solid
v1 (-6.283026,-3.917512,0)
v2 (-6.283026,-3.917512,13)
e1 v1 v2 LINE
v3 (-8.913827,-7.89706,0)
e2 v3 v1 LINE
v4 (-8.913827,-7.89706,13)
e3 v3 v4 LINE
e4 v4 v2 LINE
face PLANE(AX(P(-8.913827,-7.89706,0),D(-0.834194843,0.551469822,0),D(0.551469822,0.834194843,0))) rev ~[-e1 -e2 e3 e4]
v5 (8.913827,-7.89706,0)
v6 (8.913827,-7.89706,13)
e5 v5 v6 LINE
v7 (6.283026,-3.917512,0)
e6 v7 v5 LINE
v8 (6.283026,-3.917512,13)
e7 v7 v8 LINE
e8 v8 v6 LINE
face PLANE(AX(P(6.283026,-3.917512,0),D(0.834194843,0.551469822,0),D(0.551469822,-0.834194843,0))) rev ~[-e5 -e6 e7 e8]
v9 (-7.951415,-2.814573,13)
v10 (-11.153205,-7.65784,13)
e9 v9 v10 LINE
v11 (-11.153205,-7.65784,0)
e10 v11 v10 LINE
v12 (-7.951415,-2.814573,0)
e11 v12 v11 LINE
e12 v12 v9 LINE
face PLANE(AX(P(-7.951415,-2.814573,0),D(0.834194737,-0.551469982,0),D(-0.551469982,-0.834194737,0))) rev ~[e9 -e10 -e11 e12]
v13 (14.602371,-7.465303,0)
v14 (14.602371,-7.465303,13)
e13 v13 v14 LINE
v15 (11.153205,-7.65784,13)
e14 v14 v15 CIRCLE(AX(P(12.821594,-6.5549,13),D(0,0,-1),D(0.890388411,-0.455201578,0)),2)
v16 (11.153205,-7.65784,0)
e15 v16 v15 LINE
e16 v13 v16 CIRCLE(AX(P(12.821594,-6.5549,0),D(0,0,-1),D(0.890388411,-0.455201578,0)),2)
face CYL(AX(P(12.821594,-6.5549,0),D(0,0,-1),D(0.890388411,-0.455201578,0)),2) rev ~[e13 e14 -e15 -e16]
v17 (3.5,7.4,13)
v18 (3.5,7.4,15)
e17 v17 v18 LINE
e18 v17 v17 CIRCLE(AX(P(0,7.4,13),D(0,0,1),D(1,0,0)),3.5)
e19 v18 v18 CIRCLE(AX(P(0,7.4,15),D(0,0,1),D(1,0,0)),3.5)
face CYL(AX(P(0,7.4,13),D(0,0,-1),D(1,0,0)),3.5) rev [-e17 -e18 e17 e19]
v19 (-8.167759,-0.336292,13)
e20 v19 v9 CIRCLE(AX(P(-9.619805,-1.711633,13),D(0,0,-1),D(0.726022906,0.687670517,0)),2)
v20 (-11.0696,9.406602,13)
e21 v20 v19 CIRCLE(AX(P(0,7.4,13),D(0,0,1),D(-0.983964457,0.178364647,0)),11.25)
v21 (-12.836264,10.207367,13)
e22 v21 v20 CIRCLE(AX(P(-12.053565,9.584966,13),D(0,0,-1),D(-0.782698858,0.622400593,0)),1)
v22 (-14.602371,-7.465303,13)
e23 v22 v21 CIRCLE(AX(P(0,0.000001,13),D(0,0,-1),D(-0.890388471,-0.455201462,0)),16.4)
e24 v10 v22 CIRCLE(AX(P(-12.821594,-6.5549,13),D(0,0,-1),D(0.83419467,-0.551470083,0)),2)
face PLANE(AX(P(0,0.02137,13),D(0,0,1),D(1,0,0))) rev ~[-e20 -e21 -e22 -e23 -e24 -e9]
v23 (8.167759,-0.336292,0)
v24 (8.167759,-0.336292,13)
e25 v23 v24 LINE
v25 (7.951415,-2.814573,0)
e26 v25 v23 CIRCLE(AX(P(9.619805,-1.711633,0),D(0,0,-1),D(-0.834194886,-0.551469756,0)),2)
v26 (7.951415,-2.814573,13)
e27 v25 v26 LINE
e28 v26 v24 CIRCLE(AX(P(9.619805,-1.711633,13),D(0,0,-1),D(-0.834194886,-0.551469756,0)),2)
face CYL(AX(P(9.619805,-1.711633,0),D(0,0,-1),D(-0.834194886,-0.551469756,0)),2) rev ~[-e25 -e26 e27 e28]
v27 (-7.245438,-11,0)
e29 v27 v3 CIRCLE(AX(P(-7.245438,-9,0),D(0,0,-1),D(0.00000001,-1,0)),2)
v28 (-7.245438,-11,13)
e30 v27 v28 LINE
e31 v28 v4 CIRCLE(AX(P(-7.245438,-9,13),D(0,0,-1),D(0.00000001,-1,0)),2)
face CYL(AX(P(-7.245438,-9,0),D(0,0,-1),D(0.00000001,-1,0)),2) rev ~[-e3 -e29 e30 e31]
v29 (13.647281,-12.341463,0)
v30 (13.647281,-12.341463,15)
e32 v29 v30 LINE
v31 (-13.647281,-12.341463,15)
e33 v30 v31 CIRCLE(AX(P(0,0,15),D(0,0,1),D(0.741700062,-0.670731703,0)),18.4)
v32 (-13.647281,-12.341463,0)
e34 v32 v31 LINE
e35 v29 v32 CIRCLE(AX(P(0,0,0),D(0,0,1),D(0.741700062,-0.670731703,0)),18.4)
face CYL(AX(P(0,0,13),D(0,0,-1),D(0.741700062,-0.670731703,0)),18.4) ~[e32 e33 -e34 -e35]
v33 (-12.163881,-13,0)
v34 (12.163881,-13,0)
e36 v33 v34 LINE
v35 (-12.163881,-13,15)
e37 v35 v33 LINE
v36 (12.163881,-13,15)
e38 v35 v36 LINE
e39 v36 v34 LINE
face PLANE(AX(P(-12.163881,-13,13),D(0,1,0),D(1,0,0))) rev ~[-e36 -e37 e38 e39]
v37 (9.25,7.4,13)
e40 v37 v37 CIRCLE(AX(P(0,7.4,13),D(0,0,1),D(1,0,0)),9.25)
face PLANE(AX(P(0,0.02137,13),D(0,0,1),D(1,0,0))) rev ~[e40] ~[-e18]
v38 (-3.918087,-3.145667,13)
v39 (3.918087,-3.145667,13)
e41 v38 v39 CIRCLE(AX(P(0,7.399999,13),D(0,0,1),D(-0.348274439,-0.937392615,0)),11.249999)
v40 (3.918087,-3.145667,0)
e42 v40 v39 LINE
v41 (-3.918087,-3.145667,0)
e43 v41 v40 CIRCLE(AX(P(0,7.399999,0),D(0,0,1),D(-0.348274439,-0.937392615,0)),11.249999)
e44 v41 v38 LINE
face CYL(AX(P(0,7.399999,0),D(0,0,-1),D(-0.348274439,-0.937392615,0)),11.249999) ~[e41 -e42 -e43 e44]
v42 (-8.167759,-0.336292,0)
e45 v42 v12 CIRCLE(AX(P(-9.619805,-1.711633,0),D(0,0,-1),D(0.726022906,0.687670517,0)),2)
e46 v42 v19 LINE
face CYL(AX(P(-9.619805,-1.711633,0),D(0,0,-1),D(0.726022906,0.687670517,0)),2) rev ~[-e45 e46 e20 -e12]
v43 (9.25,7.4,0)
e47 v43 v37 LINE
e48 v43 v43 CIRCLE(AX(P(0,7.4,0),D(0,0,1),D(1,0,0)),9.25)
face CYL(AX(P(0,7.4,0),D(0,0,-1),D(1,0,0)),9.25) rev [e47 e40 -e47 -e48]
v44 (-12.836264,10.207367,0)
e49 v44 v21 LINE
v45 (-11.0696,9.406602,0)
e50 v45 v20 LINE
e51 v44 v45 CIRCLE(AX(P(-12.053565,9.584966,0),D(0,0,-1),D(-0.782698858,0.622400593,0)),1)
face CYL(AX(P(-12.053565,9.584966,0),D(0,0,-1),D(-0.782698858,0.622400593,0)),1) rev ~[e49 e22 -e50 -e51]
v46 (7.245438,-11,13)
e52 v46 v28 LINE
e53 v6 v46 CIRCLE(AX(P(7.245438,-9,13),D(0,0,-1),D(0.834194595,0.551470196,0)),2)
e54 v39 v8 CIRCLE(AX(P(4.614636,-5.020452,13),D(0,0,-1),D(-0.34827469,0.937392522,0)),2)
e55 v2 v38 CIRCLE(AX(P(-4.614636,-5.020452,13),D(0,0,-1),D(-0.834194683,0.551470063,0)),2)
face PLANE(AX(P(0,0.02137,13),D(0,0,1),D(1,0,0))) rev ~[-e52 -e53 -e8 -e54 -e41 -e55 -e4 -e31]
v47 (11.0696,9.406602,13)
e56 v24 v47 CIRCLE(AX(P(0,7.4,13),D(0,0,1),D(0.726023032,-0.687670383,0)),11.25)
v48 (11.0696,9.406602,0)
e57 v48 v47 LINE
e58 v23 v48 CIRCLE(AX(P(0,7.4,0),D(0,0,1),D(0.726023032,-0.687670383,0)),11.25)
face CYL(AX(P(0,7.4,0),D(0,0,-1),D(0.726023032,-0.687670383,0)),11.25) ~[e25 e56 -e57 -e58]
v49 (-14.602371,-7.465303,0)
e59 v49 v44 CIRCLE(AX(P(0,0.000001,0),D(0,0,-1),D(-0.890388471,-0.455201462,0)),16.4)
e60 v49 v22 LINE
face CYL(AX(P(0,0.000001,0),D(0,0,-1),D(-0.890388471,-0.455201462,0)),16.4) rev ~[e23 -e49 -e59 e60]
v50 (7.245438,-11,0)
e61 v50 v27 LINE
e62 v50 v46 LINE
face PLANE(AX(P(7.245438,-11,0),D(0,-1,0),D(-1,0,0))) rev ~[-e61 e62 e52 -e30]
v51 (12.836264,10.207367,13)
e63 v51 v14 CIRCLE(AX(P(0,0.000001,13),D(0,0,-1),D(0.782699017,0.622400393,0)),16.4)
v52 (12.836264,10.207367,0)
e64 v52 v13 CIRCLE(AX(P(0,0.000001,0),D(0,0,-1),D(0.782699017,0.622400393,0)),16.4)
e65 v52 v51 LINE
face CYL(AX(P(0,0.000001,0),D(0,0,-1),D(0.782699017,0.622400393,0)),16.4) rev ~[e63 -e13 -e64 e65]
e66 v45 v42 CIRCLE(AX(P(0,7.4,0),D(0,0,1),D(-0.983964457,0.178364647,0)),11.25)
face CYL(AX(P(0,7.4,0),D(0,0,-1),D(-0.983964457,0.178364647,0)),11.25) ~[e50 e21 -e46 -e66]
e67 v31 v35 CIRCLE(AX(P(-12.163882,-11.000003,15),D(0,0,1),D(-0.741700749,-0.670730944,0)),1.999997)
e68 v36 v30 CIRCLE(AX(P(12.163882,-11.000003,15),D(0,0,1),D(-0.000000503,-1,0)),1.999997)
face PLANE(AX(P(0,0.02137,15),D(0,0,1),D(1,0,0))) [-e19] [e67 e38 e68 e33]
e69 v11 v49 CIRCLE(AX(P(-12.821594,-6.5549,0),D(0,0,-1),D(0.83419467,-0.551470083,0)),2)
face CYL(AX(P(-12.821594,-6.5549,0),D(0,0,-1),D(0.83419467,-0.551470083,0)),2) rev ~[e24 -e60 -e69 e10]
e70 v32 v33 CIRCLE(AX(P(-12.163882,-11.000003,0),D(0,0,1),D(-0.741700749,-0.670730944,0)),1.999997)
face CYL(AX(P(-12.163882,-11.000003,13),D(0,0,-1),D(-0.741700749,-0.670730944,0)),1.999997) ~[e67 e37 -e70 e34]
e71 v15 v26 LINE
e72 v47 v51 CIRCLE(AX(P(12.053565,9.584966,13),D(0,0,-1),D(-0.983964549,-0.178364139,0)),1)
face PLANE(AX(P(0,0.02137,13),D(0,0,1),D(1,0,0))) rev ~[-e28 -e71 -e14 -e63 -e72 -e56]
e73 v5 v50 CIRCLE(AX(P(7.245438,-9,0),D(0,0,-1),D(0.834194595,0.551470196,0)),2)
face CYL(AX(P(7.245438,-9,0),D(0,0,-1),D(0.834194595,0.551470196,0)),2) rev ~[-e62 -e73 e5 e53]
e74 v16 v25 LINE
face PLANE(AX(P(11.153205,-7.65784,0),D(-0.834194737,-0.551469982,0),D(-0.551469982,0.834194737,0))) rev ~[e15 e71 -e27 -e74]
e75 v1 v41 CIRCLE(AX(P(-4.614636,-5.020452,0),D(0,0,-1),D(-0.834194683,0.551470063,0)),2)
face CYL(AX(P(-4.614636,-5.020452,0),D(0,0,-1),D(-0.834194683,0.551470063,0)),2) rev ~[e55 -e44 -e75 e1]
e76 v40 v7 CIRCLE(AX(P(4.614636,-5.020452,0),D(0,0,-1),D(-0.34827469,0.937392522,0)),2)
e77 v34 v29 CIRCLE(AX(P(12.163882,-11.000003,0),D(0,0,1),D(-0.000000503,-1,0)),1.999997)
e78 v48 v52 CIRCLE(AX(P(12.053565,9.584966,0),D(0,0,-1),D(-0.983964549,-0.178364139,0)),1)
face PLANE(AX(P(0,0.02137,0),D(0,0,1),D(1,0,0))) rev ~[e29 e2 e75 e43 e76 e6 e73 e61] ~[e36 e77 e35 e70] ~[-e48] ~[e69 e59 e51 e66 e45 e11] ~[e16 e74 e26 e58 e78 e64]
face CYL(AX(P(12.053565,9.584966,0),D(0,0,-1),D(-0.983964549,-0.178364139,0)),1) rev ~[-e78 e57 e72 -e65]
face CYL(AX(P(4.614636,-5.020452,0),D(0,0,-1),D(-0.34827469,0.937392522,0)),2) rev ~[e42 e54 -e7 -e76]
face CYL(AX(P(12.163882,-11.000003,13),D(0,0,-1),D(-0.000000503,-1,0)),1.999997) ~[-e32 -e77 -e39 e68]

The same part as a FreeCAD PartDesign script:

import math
import FreeCAD as App
import Part
import Sketcher
Q = App.Units.Quantity

doc = App.newDocument("Part")
body = doc.addObject("PartDesign::Body", "Body")

# Sketch on XY plane
sketch1 = doc.addObject("Sketcher::SketchObject", "Sketch")
body.addObject(sketch1)
sketch1.AttachmentSupport = (doc.XY_Plane, [""])
sketch1.MapMode = "FlatFace"
sketch1.addGeometry([
    Part.ArcOfCircle(Part.Circle(App.Vector(12.163882, -11.000003, 0), App.Vector(0, 0, 1), 1.999997), math.radians(-90.000029), math.radians(-42.123505)),  # 0
    Part.ArcOfCircle(Part.Circle(App.Vector(0, 0, 0), App.Vector(0, 0, 1), 18.4), math.radians(-42.123563), math.radians(222.123563)),  # 1
    Part.ArcOfCircle(Part.Circle(App.Vector(-12.163882, -11.000003, 0), App.Vector(0, 0, 1), 1.999997), math.radians(-137.876495), math.radians(-89.999971)),  # 2
    Part.LineSegment(App.Vector(-12.163881, -13, 0), App.Vector(12.163881, -13, 0)),  # 3
    Part.ArcOfCircle(Part.Circle(App.Vector(0, 0.000001, 0), App.Vector(0, 0, 1), 16.4), math.radians(141.508363), math.radians(207.077897)),  # 4
    Part.ArcOfCircle(Part.Circle(App.Vector(-12.053565, 9.584966, 0), App.Vector(0, 0, 1), 1), math.radians(-10.27449), math.radians(141.508349)),  # 5
    Part.ArcOfCircle(Part.Circle(App.Vector(0, 7.4, 0), App.Vector(0, 0, 1), 11.25), math.radians(169.72548), math.radians(223.445981)),  # 6
    Part.ArcOfCircle(Part.Circle(App.Vector(-9.619805, -1.711633, 0), App.Vector(0, 0, 1), 2), math.radians(-33.467903), math.radians(43.445992)),  # 7
    Part.LineSegment(App.Vector(-7.951415, -2.814573, 0), App.Vector(-11.153205, -7.65784, 0)),  # 8
    Part.ArcOfCircle(Part.Circle(App.Vector(-12.821594, -6.5549, 0), App.Vector(0, 0, 1), 2), math.radians(-152.922095), math.radians(-33.467925)),  # 9
    Part.ArcOfCircle(Part.Circle(App.Vector(7.245438, -9, 0), App.Vector(0, 0, 1), 2), math.radians(-90.000001), math.radians(33.467933)),  # 10
    Part.LineSegment(App.Vector(7.245438, -11, 0), App.Vector(-7.245438, -11, 0)),  # 11
    Part.ArcOfCircle(Part.Circle(App.Vector(-7.245438, -9, 0), App.Vector(0, 0, 1), 2), math.radians(146.532067), math.radians(270.000001)),  # 12
    Part.LineSegment(App.Vector(-8.913827, -7.89706, 0), App.Vector(-6.283026, -3.917512, 0)),  # 13
    Part.ArcOfCircle(Part.Circle(App.Vector(-4.614636, -5.020452, 0), App.Vector(0, 0, 1), 2), math.radians(69.618176), math.radians(146.532076)),  # 14
    Part.ArcOfCircle(Part.Circle(App.Vector(0, 7.399999, 0), App.Vector(0, 0, 1), 11.249999), math.radians(-110.381808), math.radians(-69.618192)),  # 15
    Part.ArcOfCircle(Part.Circle(App.Vector(4.614636, -5.020452, 0), App.Vector(0, 0, 1), 2), math.radians(33.467924), math.radians(110.381824)),  # 16
    Part.LineSegment(App.Vector(6.283026, -3.917512, 0), App.Vector(8.913827, -7.89706, 0)),  # 17
    Part.ArcOfCircle(Part.Circle(App.Vector(12.053565, 9.584966, 0), App.Vector(0, 0, 1), 1), math.radians(38.491651), math.radians(190.27449)),  # 18
    Part.ArcOfCircle(Part.Circle(App.Vector(0, 0.000001, 0), App.Vector(0, 0, 1), 16.4), math.radians(-27.077897), math.radians(38.491637)),  # 19
    Part.ArcOfCircle(Part.Circle(App.Vector(12.821594, -6.5549, 0), App.Vector(0, 0, 1), 2), math.radians(-146.532075), math.radians(-27.077905)),  # 20
    Part.LineSegment(App.Vector(11.153205, -7.65784, 0), App.Vector(7.951415, -2.814573, 0)),  # 21
    Part.ArcOfCircle(Part.Circle(App.Vector(9.619805, -1.711633, 0), App.Vector(0, 0, 1), 2), math.radians(136.554008), math.radians(213.467903)),  # 22
    Part.ArcOfCircle(Part.Circle(App.Vector(0, 7.4, 0), App.Vector(0, 0, 1), 11.25), math.radians(-43.445981), math.radians(10.27452)),  # 23
    Part.Circle(App.Vector(0, 7.4, 0), App.Vector(0, 0, 1), 9.25),  # 24
], False)
sketch1.addConstraint([
    Sketcher.Constraint("Tangent", 0, 2, 1, 1),
    Sketcher.Constraint("Tangent", 1, 2, 2, 1),
    Sketcher.Constraint("Tangent", 2, 2, 3, 1),
    Sketcher.Constraint("Tangent", 3, 2, 0, 1),
    Sketcher.Constraint("Tangent", 4, 1, 5, 2),
    Sketcher.Constraint("Tangent", 5, 1, 6, 1),
    Sketcher.Constraint("Tangent", 6, 2, 7, 2),
    Sketcher.Constraint("Tangent", 7, 1, 8, 1),
    Sketcher.Constraint("Tangent", 8, 2, 9, 2),
    Sketcher.Constraint("Tangent", 9, 1, 4, 2),
    Sketcher.Constraint("Tangent", 10, 1, 11, 1),
    Sketcher.Constraint("Tangent", 11, 2, 12, 2),
    Sketcher.Constraint("Tangent", 12, 1, 13, 1),
    Sketcher.Constraint("Tangent", 13, 2, 14, 2),
    Sketcher.Constraint("Tangent", 14, 1, 15, 1),
    Sketcher.Constraint("Tangent", 15, 2, 16, 2),
    Sketcher.Constraint("Tangent", 16, 1, 17, 1),
    Sketcher.Constraint("Tangent", 17, 2, 10, 2),
    Sketcher.Constraint("Tangent", 18, 1, 19, 2),
    Sketcher.Constraint("Tangent", 19, 1, 20, 2),
    Sketcher.Constraint("Tangent", 20, 1, 21, 1),
    Sketcher.Constraint("Tangent", 21, 2, 22, 2),
    Sketcher.Constraint("Tangent", 22, 1, 23, 1),
    Sketcher.Constraint("Tangent", 23, 2, 18, 2),
    Sketcher.Constraint("Horizontal", 3),
    Sketcher.Constraint("Horizontal", 11),
    Sketcher.Constraint("Coincident", 1, 3, -1, 1),
    Sketcher.Constraint("Coincident", 4, 3, -1, 1),
    Sketcher.Constraint("Coincident", 19, 3, -1, 1),
    Sketcher.Constraint("Coincident", 15, 3, 6, 3),
    Sketcher.Constraint("Coincident", 23, 3, 6, 3),
    Sketcher.Constraint("Coincident", 24, 3, 6, 3),
    Sketcher.Constraint("Equal", 0, 2),
    Sketcher.Constraint("Equal", 7, 9),
    Sketcher.Constraint("Equal", 9, 10),
    Sketcher.Constraint("Equal", 10, 12),
    Sketcher.Constraint("Equal", 12, 14),
    Sketcher.Constraint("Equal", 6, 15),
    Sketcher.Constraint("Equal", 14, 16),
    Sketcher.Constraint("Equal", 5, 18),
    Sketcher.Constraint("Equal", 4, 19),
    Sketcher.Constraint("Equal", 16, 20),
    Sketcher.Constraint("Equal", 20, 22),
    Sketcher.Constraint("Equal", 15, 23),
    Sketcher.Constraint("Symmetric", 14, 3, 16, 3, -2),
    Sketcher.Constraint("Symmetric", 8, 2, 20, 1, -2),
    Sketcher.Constraint("Parallel", 8, 13),
    Sketcher.Constraint("Parallel", 17, 21),
    Sketcher.Constraint("Radius", 5, Q("1 mm")),
    Sketcher.Constraint("Radius", 7, Q("2 mm")),
    Sketcher.Constraint("Diameter", 24, Q("18.5 mm")),
    Sketcher.Constraint("Radius", 1, Q("18.4 mm")),
    Sketcher.Constraint("Radius", 4, Q("16.4 mm")),
    Sketcher.Constraint("Radius", 6, Q("11.25 mm")),
    Sketcher.Constraint("DistanceY", 10, 3, -1, 1, Q("9 mm")),
    Sketcher.Constraint("DistanceY", 2, 2, -1, 1, Q("13 mm")),
    Sketcher.Constraint("DistanceY", -1, 1, 6, 3, Q("7.4 mm")),
    Sketcher.Constraint("Radius", 0, Q("1.999997 mm")),
    Sketcher.Constraint("DistanceY", 7, 3, 4, 1, Q("11.919 mm")),
    Sketcher.Constraint("DistanceY", 9, 3, -1, 1, Q("6.5549 mm")),
    Sketcher.Constraint("DistanceX", 12, 3, 14, 3, Q("2.630802 mm")),
])
pad1 = doc.addObject("PartDesign::Pad", "Pad")
body.addObject(pad1)
pad1.Profile = sketch1
pad1.Length = 13

# Sketch on XY plane
sketch2 = doc.addObject("Sketcher::SketchObject", "Sketch001")
body.addObject(sketch2)
sketch2.AttachmentSupport = (doc.XY_Plane, [""])
sketch2.MapMode = "FlatFace"
sketch2.AttachmentOffset = App.Placement(App.Vector(0, 0, 13), App.Rotation())
sketch2.addGeometry([
    Part.ArcOfCircle(Part.Circle(App.Vector(12.163882, -11.000003, 0), App.Vector(0, 0, 1), 1.999997), math.radians(-90.000029), math.radians(-42.123505)),  # 0
    Part.ArcOfCircle(Part.Circle(App.Vector(0, 0, 0), App.Vector(0, 0, 1), 18.4), math.radians(-42.123563), math.radians(222.123563)),  # 1
    Part.ArcOfCircle(Part.Circle(App.Vector(-12.163882, -11.000003, 0), App.Vector(0, 0, 1), 1.999997), math.radians(-137.876495), math.radians(-89.999971)),  # 2
    Part.LineSegment(App.Vector(-12.163881, -13, 0), App.Vector(12.163881, -13, 0)),  # 3
    Part.Circle(App.Vector(0, 7.4, 0), App.Vector(0, 0, 1), 3.5),  # 4
], False)
sketch2.addConstraint([
    Sketcher.Constraint("Tangent", 0, 2, 1, 1),
    Sketcher.Constraint("Tangent", 1, 2, 2, 1),
    Sketcher.Constraint("Tangent", 2, 2, 3, 1),
    Sketcher.Constraint("Tangent", 3, 2, 0, 1),
    Sketcher.Constraint("Horizontal", 3),
    Sketcher.Constraint("Coincident", 1, 3, -1, 1),
    Sketcher.Constraint("Equal", 0, 2),
    Sketcher.Constraint("PointOnObject", 4, 3, -2),
    Sketcher.Constraint("Diameter", 4, Q("7 mm")),
    Sketcher.Constraint("Radius", 1, Q("18.4 mm")),
    Sketcher.Constraint("DistanceY", 2, 2, -1, 1, Q("13 mm")),
    Sketcher.Constraint("DistanceY", -1, 1, 4, 3, Q("7.4 mm")),
    Sketcher.Constraint("Radius", 0, Q("1.999997 mm")),
])
pad2 = doc.addObject("PartDesign::Pad", "Pad001")
body.addObject(pad2)
pad2.Profile = sketch2
pad2.Length = 2

doc.recompute()
